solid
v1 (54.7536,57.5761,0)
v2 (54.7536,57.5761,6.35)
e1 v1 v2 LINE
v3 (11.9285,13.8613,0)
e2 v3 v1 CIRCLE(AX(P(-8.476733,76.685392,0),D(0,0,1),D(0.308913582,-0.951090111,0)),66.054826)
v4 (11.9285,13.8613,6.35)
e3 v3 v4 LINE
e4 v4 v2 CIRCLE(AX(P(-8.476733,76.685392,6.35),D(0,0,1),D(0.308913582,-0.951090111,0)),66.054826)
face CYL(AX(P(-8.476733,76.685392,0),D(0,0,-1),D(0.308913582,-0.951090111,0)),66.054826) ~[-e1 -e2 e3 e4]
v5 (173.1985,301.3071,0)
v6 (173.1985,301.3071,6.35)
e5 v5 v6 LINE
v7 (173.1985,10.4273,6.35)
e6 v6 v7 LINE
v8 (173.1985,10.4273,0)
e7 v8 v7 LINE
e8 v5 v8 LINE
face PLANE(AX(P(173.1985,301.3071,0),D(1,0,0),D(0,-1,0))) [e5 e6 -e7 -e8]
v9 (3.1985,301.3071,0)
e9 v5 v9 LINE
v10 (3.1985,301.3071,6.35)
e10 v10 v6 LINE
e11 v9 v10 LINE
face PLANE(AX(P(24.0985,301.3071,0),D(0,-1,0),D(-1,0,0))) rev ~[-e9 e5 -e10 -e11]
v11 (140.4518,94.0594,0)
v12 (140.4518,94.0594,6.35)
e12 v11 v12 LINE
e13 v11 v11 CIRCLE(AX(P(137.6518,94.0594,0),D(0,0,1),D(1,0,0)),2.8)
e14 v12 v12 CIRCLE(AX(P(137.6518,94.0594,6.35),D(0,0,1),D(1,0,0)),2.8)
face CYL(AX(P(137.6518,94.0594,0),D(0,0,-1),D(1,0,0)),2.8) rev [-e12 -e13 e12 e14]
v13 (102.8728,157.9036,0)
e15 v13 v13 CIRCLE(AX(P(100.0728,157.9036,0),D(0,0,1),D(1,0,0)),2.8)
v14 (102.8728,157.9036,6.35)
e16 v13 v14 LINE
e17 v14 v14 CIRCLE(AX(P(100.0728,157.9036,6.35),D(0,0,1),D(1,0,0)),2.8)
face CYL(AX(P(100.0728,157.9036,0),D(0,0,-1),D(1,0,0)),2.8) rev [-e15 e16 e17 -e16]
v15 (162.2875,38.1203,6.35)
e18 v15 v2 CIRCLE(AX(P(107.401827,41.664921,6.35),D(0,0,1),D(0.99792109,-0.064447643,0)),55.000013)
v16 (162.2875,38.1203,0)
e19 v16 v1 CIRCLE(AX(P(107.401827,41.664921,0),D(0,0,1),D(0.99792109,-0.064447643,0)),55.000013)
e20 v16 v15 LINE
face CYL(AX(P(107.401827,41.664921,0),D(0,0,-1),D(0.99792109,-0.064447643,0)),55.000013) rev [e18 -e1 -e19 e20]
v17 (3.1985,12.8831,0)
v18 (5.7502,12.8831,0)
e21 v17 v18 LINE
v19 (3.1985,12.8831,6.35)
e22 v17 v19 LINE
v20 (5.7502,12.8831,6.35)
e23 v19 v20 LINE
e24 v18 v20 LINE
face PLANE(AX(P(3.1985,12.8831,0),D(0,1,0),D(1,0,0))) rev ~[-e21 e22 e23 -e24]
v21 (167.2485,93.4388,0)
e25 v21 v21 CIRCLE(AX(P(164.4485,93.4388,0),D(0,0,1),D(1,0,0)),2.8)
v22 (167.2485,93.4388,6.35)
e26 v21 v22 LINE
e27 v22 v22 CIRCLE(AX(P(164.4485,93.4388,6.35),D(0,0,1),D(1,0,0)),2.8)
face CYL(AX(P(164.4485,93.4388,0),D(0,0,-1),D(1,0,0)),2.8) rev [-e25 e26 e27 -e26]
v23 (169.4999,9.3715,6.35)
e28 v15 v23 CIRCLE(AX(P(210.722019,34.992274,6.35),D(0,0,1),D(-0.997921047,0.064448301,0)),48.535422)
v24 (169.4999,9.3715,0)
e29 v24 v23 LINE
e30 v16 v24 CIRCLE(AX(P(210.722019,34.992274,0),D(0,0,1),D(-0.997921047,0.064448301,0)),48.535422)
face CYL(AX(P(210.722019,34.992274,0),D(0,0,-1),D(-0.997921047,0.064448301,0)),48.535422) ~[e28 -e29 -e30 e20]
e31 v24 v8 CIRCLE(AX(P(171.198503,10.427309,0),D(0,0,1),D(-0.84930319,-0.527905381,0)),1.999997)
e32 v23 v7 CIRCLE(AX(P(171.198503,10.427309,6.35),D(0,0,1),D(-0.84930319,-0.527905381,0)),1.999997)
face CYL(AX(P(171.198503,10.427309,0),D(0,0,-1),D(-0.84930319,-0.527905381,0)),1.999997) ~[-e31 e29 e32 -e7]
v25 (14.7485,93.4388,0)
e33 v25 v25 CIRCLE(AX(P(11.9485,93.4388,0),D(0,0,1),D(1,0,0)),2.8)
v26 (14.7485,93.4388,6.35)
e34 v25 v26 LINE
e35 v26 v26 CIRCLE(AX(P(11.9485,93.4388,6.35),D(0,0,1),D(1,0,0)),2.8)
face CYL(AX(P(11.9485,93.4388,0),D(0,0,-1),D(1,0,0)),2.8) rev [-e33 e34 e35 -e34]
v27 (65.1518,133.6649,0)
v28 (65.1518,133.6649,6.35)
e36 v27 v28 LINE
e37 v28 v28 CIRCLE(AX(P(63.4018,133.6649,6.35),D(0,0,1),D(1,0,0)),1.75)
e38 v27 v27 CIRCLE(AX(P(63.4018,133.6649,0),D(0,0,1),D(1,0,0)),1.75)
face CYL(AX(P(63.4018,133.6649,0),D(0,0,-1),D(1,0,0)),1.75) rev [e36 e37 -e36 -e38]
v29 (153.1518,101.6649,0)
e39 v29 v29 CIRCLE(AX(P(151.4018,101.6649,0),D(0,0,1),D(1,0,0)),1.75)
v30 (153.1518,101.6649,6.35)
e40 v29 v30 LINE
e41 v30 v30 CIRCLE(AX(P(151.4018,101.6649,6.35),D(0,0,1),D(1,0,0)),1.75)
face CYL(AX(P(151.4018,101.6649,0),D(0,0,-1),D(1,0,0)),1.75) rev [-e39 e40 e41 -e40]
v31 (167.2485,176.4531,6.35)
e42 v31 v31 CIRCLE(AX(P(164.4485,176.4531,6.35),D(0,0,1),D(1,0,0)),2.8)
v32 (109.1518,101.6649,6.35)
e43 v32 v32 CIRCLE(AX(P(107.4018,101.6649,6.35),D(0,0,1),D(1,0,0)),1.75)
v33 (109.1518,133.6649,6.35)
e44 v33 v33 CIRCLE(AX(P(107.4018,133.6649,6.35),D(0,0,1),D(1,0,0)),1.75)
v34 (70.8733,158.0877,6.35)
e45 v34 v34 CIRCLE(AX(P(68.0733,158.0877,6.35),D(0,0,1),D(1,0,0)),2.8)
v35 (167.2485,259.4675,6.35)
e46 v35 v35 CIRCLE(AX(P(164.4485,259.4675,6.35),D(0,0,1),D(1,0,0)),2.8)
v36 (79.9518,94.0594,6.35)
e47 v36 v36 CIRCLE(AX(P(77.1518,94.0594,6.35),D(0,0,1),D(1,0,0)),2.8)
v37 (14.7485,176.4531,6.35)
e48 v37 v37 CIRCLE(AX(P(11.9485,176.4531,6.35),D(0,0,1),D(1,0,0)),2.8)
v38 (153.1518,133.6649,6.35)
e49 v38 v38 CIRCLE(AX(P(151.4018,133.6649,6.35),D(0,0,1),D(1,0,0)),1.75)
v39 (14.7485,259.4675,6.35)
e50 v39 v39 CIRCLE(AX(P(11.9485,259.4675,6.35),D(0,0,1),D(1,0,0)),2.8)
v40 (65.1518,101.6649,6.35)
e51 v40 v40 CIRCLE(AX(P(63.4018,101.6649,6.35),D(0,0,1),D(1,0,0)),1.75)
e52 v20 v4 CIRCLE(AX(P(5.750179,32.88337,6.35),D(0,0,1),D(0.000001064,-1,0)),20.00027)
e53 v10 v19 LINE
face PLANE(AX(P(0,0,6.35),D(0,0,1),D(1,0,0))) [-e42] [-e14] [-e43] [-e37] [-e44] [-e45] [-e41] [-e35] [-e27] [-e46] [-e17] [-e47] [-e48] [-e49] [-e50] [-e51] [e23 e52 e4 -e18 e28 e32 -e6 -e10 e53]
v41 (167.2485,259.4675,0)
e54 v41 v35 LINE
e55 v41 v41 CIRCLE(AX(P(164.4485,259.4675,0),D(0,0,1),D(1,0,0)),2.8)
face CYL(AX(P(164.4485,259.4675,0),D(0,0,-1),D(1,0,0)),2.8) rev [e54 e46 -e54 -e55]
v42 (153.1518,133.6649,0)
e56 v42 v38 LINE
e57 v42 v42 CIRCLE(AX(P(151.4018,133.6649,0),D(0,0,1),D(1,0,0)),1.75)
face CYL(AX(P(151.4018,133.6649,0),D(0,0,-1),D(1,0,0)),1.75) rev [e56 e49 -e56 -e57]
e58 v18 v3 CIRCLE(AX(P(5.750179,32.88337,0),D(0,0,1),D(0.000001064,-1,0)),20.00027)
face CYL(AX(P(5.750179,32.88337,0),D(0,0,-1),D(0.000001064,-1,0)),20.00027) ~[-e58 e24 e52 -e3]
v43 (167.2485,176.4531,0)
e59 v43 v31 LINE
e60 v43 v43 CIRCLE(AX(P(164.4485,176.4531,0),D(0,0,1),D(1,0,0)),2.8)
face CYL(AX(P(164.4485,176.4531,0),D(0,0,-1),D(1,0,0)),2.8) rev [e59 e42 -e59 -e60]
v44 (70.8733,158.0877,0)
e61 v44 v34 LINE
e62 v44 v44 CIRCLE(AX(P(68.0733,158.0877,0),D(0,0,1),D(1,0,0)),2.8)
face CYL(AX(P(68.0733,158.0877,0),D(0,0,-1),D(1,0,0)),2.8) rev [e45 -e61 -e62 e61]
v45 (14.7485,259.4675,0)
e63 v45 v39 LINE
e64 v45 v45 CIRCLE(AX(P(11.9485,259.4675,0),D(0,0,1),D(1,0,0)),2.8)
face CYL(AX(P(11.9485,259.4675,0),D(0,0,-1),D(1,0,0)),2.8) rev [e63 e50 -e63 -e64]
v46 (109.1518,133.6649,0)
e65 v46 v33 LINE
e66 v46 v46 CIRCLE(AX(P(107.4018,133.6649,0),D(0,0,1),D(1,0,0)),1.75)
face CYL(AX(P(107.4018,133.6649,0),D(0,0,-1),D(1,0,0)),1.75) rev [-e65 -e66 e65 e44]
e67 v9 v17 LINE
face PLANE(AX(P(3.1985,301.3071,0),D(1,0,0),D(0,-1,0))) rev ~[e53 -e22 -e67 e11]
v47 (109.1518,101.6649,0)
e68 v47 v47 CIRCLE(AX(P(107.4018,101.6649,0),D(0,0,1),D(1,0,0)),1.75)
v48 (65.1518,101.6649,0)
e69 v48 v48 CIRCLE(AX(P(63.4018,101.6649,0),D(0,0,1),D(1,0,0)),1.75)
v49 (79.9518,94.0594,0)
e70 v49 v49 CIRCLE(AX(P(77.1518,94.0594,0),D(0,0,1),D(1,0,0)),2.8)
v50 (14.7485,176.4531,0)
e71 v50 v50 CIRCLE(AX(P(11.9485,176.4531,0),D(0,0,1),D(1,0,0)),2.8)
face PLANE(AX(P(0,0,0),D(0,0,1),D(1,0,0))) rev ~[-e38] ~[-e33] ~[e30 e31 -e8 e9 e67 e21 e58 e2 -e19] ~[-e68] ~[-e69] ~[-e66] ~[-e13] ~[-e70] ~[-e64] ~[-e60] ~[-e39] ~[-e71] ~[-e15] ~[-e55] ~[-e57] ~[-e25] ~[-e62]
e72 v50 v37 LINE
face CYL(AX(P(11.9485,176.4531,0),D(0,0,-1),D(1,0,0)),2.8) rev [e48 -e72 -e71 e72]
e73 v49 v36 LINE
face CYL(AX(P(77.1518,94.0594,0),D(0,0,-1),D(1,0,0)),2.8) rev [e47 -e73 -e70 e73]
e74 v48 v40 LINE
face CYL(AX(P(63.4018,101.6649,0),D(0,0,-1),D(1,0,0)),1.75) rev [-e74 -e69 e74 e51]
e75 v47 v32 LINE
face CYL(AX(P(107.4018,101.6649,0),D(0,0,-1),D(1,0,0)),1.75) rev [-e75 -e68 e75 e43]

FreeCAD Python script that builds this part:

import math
import FreeCAD as App
import Part
import Sketcher
from FreeCAD import Vector

doc = App.newDocument("Part")
params = doc.addObject("Spreadsheet::Sheet", "Params")
for row, (alias, value) in enumerate([
    ("sketch1_radius", "20 mm"),
    ("sketch1_radius2", "55 mm"),
    ("sketch1_radius3", "2 mm"),
    ("sketch1_diameter", "5.6 mm"),
    ("sketch1_diameter2", "3.5 mm"),
    ("pad1_length", "6.35 mm"),
], start=1):
    params.set(f"A{row}", alias)
    params.set(f"B{row}", "=" + value)
    params.setAlias(f"B{row}", alias)

body = doc.addObject("PartDesign::Body", "Body")

# Sketch on XY plane
sketch1 = body.newObject("Sketcher::SketchObject", "Sketch")
sketch1.AttachmentSupport = (doc.getObject("XY_Plane"), [""])
sketch1.MapMode = "FlatFace"
sketch1.addGeometry([
    Part.LineSegment(Vector(3.2, 301.3, 0), Vector(3.2, 12.9, 0)),  # 0
    Part.LineSegment(Vector(3.2, 12.9, 0), Vector(5.8, 12.9, 0)),  # 1
    Part.ArcOfCircle(Part.Circle(Vector(5.8, 32.9, 0), Vector(0, 0, 1), 20), math.radians(-90), math.radians(-72.01)),  # 2
    Part.ArcOfCircle(Part.Circle(Vector(-8.5, 76.7, 0), Vector(0, 0, 1), 66.1), math.radians(-72), math.radians(-17)),  # 3
    Part.ArcOfCircle(Part.Circle(Vector(107.4, 41.7, 0), Vector(0, 0, 1), 55), math.radians(-4), math.radians(163)),  # 4
    Part.ArcOfCircle(Part.Circle(Vector(210.7, 35, 0), Vector(0, 0, 1), 48.5), math.radians(176), math.radians(212)),  # 5
    Part.ArcOfCircle(Part.Circle(Vector(171.2, 10.4, 0), Vector(0, 0, 1), 2), math.radians(-148), math.radians(0)),  # 6
    Part.LineSegment(Vector(173.2, 10.4, 0), Vector(173.2, 301.3, 0)),  # 7
    Part.LineSegment(Vector(173.2, 301.3, 0), Vector(3.2, 301.3, 0)),  # 8
    Part.Circle(Vector(11.9, 93.4, 0), Vector(0, 0, 1), 2.8),  # 9
    Part.Circle(Vector(63.4, 101.7, 0), Vector(0, 0, 1), 1.8),  # 10
    Part.Circle(Vector(77.2, 94.1, 0), Vector(0, 0, 1), 2.8),  # 11
    Part.Circle(Vector(63.4, 133.7, 0), Vector(0, 0, 1), 1.8),  # 12
    Part.Circle(Vector(107.4, 101.7, 0), Vector(0, 0, 1), 1.8),  # 13
    Part.Circle(Vector(107.4, 133.7, 0), Vector(0, 0, 1), 1.8),  # 14
    Part.Circle(Vector(137.7, 94.1, 0), Vector(0, 0, 1), 2.8),  # 15
    Part.Circle(Vector(151.4, 101.7, 0), Vector(0, 0, 1), 1.8),  # 16
    Part.Circle(Vector(164.4, 93.4, 0), Vector(0, 0, 1), 2.8),  # 17
    Part.Circle(Vector(151.4, 133.7, 0), Vector(0, 0, 1), 1.8),  # 18
    Part.Circle(Vector(11.9, 176.5, 0), Vector(0, 0, 1), 2.8),  # 19
    Part.Circle(Vector(11.9, 259.5, 0), Vector(0, 0, 1), 2.8),  # 20
    Part.Circle(Vector(164.4, 176.5, 0), Vector(0, 0, 1), 2.8),  # 21
    Part.Circle(Vector(164.4, 259.5, 0), Vector(0, 0, 1), 2.8),  # 22
    Part.Circle(Vector(68.1, 158.1, 0), Vector(0, 0, 1), 2.8),  # 23
    Part.Circle(Vector(100.1, 157.9, 0), Vector(0, 0, 1), 2.8),  # 24
], False)
sketch1.addConstraint([
    Sketcher.Constraint("Coincident", 0, 2, 1, 1),
    Sketcher.Constraint("Tangent", 1, 2, 2, 1),
    Sketcher.Constraint("Tangent", 2, 2, 3, 1),
    Sketcher.Constraint("Tangent", 3, 2, 4, 2),
    Sketcher.Constraint("Tangent", 4, 1, 5, 1),
    Sketcher.Constraint("Tangent", 5, 2, 6, 1),
    Sketcher.Constraint("Tangent", 6, 2, 7, 1),
    Sketcher.Constraint("Coincident", 7, 2, 8, 1),
    Sketcher.Constraint("Coincident", 8, 2, 0, 1),
    Sketcher.Constraint("Vertical", 0),
    Sketcher.Constraint("Horizontal", 1),
    Sketcher.Constraint("Vertical", 7),
    Sketcher.Constraint("Horizontal", 8),
    Sketcher.Constraint("Equal", 9, 11),
    Sketcher.Constraint("Equal", 10, 12),
    Sketcher.Constraint("Equal", 12, 13),
    Sketcher.Constraint("Equal", 13, 14),
    Sketcher.Constraint("Equal", 11, 15),
    Sketcher.Constraint("Equal", 14, 16),
    Sketcher.Constraint("Equal", 15, 17),
    Sketcher.Constraint("Equal", 16, 18),
    Sketcher.Constraint("Equal", 17, 19),
    Sketcher.Constraint("Equal", 19, 20),
    Sketcher.Constraint("Equal", 20, 21),
    Sketcher.Constraint("Equal", 21, 22),
    Sketcher.Constraint("Equal", 22, 23),
    Sketcher.Constraint("Equal", 23, 24),
    Sketcher.Constraint("Horizontal", 10, 3, 13, 3),
    Sketcher.Constraint("Horizontal", 12, 3, 14, 3),
    Sketcher.Constraint("Horizontal", 11, 3, 15, 3),
    Sketcher.Constraint("Horizontal", 13, 3, 16, 3),
    Sketcher.Constraint("Horizontal", 9, 3, 17, 3),
    Sketcher.Constraint("Horizontal", 14, 3, 18, 3),
    Sketcher.Constraint("Horizontal", 19, 3, 21, 3),
    Sketcher.Constraint("Horizontal", 20, 3, 22, 3),
    Sketcher.Constraint("Vertical", 10, 3, 12, 3),
    Sketcher.Constraint("Vertical", 4, 3, 13, 3),
    Sketcher.Constraint("Vertical", 13, 3, 14, 3),
    Sketcher.Constraint("Vertical", 16, 3, 18, 3),
    Sketcher.Constraint("Vertical", 9, 3, 19, 3),
    Sketcher.Constraint("Vertical", 19, 3, 20, 3),
    Sketcher.Constraint("Vertical", 17, 3, 21, 3),
    Sketcher.Constraint("Vertical", 21, 3, 22, 3),
    Sketcher.Constraint("Radius", 2, 20.0),
    Sketcher.Constraint("Radius", 4, 55.0),
    Sketcher.Constraint("Radius", 6, 2.0),
    Sketcher.Constraint("Diameter", 9, 5.6),
    Sketcher.Constraint("Diameter", 10, 3.5),
    Sketcher.Constraint("DistanceY", 4, 3, 10, 3, 60.0),
    Sketcher.Constraint("DistanceY", 10, 3, 12, 3, 32.0),
    Sketcher.Constraint("DistanceX", 11, 3, 15, 3, 60.5),
    Sketcher.Constraint("DistanceX", 8, 2, 8, 1, 170.0),
    Sketcher.Constraint("Radius", 3, 66.055),
    Sketcher.Constraint("DistanceX", 10, 3, 4, 3, 44.0),
    Sketcher.Constraint("DistanceX", 13, 3, 16, 3, 44.0),
    Sketcher.Constraint("Radius", 5, 48.5357),
    Sketcher.Constraint("DistanceX", 20, 3, 22, 3, 152.5),
    Sketcher.Constraint("DistanceX", 23, 3, 24, 3, 31.9995),
    Sketcher.Constraint("DistanceY", 0, 2, 0, 1, 288.424),
    Sketcher.Constraint("DistanceX", 9, 3, 6, 3, 159.25),
    Sketcher.Constraint("DistanceX", 10, 3, 11, 3, 13.75),
    Sketcher.Constraint("DistanceX", 0, 2, 2, 2, 8.73),
    Sketcher.Constraint("DistanceX", 1, 1, 1, 2, 2.5517),
    Sketcher.Constraint("DistanceY", 7, 1, 7, 2, 290.8798),
    Sketcher.Constraint("DistanceY", -1, 1, 2, 3, 32.883),
    Sketcher.Constraint("DistanceY", -1, 1, 4, 3, 41.665),
    Sketcher.Constraint("DistanceY", -1, 1, 19, 3, 176.453),
    Sketcher.Constraint("DistanceY", 4, 3, 9, 3, 51.774),
    Sketcher.Constraint("DistanceY", 3, 3, 11, 3, 17.374),
    Sketcher.Constraint("DistanceX", 24, 3, 14, 3, 7.329),
    Sketcher.Constraint("DistanceY", 24, 3, 23, 3, 0.184),
    Sketcher.Constraint("DistanceX", -1, 1, 2, 3, 5.7502),
    Sketcher.Constraint("DistanceY", -1, 1, 20, 3, 259.4675),
    Sketcher.Constraint("DistanceY", -1, 1, 23, 3, 158.0877),
])
sketch1.setExpression("Constraints[43]", "Params.sketch1_radius")
sketch1.setExpression("Constraints[44]", "Params.sketch1_radius2")
sketch1.setExpression("Constraints[45]", "Params.sketch1_radius3")
sketch1.setExpression("Constraints[46]", "Params.sketch1_diameter")
sketch1.setExpression("Constraints[47]", "Params.sketch1_diameter2")
pad1 = body.newObject("PartDesign::Pad", "Pad")
pad1.Profile = sketch1
pad1.setExpression("Length", "Params.pad1_length")

doc.recompute()
